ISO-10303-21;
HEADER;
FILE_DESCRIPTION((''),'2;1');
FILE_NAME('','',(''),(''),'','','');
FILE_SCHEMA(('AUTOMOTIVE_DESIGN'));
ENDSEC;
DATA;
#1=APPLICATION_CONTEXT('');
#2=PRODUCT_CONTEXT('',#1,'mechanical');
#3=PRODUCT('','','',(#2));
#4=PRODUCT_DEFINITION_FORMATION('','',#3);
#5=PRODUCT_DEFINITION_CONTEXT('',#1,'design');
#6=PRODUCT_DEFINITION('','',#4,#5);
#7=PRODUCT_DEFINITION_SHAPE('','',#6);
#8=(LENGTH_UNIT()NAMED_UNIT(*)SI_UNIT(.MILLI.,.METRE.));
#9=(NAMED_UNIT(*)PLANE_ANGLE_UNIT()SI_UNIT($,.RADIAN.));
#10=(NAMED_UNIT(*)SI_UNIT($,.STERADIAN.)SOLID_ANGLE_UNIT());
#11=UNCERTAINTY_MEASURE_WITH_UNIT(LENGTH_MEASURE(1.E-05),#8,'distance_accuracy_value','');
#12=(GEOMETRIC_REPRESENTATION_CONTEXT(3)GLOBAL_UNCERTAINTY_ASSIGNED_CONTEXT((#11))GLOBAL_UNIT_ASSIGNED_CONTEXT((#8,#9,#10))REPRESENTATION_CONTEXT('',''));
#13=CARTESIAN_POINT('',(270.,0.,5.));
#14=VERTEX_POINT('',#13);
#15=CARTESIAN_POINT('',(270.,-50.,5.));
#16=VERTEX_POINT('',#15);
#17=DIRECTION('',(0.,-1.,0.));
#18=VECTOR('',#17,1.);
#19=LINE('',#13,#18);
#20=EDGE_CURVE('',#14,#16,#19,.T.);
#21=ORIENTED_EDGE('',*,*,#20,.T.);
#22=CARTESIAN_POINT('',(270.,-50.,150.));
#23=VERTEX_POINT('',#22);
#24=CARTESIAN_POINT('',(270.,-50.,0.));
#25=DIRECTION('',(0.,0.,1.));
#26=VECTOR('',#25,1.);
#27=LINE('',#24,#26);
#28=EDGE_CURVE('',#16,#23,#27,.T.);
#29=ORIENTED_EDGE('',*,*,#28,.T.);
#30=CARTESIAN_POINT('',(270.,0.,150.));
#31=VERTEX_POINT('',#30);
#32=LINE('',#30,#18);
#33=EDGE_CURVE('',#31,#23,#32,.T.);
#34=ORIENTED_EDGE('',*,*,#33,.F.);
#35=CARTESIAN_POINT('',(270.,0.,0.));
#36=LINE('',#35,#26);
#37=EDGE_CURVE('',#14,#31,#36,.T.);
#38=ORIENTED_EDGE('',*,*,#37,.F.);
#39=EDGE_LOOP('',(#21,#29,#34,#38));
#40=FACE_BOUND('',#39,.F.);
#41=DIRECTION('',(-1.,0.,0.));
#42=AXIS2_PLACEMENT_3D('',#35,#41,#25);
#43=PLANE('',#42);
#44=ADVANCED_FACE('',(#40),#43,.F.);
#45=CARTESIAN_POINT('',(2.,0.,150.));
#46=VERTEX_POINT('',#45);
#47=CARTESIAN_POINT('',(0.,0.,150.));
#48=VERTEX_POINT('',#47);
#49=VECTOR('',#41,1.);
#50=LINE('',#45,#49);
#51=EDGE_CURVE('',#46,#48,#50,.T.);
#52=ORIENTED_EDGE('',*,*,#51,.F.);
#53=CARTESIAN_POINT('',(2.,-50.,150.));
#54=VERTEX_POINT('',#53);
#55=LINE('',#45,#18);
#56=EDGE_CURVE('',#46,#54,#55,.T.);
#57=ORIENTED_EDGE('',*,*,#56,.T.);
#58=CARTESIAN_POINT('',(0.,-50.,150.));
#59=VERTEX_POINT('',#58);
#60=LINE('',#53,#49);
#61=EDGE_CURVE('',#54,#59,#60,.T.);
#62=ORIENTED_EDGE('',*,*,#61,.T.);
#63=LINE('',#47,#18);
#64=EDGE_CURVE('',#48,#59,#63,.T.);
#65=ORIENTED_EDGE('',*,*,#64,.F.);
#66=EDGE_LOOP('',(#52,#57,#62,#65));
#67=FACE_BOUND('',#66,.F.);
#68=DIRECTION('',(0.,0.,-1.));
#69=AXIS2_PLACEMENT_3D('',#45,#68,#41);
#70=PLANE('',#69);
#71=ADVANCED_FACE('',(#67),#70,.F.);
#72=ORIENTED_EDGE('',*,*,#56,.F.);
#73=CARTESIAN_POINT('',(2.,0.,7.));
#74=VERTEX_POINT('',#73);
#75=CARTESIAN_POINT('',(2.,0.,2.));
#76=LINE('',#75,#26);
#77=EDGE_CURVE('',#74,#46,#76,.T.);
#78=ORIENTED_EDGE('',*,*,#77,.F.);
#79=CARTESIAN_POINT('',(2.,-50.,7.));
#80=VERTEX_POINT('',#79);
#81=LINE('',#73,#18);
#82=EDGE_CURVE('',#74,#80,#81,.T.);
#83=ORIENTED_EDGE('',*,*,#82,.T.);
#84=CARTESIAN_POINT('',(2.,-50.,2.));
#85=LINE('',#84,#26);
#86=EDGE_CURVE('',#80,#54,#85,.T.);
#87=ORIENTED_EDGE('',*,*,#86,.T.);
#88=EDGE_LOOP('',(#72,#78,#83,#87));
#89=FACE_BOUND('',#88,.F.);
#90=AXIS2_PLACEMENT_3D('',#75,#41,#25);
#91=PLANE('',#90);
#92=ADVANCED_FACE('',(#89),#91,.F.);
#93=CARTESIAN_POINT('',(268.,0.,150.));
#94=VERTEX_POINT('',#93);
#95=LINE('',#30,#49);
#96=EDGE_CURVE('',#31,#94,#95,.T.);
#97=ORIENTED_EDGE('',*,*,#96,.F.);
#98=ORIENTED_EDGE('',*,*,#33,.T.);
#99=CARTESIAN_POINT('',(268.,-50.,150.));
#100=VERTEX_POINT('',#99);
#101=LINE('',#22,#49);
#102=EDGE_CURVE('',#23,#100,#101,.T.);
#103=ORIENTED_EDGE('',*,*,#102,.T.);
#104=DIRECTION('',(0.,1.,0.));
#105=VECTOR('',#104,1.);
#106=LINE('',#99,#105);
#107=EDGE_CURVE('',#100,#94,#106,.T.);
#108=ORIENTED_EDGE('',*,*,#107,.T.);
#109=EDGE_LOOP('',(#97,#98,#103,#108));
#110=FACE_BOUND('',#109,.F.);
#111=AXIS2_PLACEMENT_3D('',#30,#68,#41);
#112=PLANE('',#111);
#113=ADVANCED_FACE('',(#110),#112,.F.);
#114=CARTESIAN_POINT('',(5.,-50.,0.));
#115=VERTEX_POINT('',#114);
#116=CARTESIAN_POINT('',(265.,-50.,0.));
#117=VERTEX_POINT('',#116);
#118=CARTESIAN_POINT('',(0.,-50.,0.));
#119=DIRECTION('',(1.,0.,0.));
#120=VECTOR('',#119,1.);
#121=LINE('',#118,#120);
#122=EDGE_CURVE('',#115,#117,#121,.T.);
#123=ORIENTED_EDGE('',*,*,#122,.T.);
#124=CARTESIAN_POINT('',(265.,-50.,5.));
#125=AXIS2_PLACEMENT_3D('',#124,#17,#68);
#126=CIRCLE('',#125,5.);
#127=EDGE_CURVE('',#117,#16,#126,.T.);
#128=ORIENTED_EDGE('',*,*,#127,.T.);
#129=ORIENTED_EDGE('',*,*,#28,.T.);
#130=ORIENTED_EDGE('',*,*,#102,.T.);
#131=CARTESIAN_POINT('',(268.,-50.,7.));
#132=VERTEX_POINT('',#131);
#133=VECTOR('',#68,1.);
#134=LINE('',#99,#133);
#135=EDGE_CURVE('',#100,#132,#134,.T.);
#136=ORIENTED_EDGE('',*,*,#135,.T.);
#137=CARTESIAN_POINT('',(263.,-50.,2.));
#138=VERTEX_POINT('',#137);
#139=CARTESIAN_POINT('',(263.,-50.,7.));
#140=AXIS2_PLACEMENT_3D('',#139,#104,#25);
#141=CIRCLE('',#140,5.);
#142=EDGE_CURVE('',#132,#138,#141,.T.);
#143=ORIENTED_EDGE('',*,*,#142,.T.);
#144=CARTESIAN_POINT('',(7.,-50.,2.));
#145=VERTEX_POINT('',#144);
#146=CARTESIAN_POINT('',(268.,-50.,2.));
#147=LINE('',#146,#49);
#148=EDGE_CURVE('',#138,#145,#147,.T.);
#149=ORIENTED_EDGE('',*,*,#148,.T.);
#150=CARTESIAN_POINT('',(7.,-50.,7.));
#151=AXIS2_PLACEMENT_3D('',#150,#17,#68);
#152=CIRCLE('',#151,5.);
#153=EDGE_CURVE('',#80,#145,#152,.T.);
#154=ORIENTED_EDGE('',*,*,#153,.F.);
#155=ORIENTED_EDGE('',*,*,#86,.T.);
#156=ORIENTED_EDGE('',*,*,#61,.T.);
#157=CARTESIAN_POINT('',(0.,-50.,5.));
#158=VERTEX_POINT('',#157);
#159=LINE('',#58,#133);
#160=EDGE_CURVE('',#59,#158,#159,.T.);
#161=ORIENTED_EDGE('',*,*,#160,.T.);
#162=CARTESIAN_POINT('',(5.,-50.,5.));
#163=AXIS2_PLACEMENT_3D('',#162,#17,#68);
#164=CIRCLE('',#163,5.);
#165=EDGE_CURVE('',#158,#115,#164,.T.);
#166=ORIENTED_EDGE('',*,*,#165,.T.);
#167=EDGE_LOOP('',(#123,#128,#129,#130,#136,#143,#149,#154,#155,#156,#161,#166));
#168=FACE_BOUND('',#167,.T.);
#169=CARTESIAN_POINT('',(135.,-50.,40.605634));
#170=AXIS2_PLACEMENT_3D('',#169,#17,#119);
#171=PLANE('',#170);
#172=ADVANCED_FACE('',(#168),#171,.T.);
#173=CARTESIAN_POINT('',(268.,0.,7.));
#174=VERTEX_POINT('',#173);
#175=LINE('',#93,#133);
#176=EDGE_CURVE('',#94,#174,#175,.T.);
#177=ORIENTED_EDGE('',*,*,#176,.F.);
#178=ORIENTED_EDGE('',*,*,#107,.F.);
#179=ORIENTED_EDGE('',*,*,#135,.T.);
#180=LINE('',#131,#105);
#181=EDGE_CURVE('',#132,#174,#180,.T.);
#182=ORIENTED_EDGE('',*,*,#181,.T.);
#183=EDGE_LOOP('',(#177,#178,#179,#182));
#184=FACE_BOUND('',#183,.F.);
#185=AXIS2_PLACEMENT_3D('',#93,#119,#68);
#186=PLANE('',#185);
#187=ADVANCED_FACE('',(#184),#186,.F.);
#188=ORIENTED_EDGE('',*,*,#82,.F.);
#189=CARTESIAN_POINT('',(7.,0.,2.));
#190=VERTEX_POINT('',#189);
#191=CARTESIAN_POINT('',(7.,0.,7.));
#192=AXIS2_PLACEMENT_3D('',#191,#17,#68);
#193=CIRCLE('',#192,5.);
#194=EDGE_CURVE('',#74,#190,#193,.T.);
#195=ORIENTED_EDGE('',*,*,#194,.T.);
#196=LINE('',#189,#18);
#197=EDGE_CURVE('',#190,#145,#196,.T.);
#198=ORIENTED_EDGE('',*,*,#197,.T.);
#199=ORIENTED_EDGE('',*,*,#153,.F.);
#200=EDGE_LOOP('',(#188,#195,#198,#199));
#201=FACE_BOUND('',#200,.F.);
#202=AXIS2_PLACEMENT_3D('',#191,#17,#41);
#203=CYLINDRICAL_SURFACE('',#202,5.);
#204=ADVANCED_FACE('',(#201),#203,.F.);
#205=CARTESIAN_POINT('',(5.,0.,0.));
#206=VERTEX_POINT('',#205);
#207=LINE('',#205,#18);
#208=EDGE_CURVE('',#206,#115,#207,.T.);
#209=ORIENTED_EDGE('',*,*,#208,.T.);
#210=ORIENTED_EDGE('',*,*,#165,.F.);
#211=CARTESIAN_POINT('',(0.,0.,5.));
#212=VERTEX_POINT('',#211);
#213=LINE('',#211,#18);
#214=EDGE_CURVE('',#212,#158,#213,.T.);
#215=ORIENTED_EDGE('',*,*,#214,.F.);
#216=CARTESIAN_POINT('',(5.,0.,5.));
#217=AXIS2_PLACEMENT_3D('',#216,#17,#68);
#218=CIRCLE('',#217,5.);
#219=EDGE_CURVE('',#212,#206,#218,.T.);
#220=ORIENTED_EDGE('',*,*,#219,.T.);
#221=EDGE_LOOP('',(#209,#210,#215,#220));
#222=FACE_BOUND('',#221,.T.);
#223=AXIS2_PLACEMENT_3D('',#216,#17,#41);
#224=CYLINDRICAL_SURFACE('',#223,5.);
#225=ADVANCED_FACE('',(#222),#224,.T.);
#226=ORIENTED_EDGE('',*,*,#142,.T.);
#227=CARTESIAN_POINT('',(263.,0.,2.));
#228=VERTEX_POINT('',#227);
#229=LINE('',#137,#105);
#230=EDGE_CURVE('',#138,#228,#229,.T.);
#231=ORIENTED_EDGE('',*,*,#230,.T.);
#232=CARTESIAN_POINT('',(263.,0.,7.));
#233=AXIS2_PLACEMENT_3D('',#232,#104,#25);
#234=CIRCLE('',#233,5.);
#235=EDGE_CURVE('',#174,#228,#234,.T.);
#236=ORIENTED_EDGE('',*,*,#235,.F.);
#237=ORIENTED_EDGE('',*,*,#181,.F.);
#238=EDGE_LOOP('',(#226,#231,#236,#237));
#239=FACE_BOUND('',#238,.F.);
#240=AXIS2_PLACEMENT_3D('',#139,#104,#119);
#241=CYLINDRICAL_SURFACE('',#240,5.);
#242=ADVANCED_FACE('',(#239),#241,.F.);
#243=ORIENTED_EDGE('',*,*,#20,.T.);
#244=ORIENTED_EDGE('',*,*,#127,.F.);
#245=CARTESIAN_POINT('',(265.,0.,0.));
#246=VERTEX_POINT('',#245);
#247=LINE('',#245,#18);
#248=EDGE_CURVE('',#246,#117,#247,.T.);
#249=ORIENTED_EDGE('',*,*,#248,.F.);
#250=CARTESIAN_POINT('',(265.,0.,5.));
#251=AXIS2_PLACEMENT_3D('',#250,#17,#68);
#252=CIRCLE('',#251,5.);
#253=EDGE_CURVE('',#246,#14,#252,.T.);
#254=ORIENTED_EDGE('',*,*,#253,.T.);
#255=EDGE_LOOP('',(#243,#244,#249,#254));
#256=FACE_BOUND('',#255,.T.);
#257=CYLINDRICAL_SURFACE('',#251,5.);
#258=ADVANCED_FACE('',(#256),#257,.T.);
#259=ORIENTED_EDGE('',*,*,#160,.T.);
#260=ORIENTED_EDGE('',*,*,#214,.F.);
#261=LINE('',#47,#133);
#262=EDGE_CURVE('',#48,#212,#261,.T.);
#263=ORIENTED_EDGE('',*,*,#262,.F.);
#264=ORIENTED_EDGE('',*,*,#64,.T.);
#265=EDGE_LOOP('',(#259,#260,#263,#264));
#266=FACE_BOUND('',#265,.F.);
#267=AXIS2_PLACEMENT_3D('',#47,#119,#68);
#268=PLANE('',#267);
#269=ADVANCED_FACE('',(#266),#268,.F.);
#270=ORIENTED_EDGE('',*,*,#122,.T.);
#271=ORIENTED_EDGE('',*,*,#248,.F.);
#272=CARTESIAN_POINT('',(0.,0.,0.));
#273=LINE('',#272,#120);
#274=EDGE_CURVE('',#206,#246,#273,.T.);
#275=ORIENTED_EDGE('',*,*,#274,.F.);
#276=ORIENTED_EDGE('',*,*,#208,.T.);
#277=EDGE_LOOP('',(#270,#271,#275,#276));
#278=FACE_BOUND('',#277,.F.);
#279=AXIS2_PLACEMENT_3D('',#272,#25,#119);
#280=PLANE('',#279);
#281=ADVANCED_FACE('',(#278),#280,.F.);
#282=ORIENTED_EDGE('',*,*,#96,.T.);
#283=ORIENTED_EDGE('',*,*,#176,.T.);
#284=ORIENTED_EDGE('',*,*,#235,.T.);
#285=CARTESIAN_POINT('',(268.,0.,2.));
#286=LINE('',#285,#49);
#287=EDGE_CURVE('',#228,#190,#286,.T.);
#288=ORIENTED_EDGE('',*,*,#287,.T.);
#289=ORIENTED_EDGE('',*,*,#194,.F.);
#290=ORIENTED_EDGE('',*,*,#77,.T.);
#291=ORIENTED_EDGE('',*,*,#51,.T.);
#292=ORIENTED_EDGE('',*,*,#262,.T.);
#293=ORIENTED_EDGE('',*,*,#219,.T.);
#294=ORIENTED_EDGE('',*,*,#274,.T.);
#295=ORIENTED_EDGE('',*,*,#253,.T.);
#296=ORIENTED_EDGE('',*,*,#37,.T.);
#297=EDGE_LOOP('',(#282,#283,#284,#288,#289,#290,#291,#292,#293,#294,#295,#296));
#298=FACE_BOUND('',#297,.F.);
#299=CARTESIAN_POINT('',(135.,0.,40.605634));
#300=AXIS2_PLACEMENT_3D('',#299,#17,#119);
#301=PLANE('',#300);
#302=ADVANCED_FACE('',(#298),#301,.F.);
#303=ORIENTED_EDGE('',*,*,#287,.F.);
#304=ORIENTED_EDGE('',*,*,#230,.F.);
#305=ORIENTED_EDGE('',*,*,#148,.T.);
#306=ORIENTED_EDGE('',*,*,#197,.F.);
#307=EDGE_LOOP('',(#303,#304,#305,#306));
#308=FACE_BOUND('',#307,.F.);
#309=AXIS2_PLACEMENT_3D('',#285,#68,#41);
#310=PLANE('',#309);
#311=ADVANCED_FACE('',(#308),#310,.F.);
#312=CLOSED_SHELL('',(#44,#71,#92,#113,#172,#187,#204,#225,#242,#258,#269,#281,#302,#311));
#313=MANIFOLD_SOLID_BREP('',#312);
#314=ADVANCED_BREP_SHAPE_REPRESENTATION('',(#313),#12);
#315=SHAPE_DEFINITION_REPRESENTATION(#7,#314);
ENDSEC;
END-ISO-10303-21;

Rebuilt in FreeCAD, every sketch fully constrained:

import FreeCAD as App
import Part
import Sketcher
Q = App.Units.Quantity


def edges_at(feature, points):
    """Names of the edges that pass closest to the given points."""
    edges = feature.Shape.Edges
    near = lambda p: min(range(len(edges)), key=lambda i: edges[i].distToShape(Part.Vertex(*p))[0])
    return sorted({f"Edge{near(p) + 1}" for p in points})

doc = App.newDocument("Part")
body = doc.addObject("PartDesign::Body", "Body")

# Sketch on XZ plane
sketch1 = doc.addObject("Sketcher::SketchObject", "Sketch")
body.addObject(sketch1)
sketch1.AttachmentSupport = (doc.XZ_Plane, [""])
sketch1.MapMode = "FlatFace"
sketch1.addGeometry(Part.LineSegment(App.Vector(268, 2, 0), App.Vector(2, 2, 0)), False)
sketch1.addGeometry(Part.LineSegment(App.Vector(2, 2, 0), App.Vector(2, 150, 0)), False)
sketch1.addGeometry(Part.LineSegment(App.Vector(2, 150, 0), App.Vector(0, 150, 0)), False)
sketch1.addGeometry(Part.LineSegment(App.Vector(0, 150, 0), App.Vector(0, 0, 0)), False)
sketch1.addGeometry(Part.LineSegment(App.Vector(0, 0, 0), App.Vector(270, 0, 0)), False)
sketch1.addGeometry(Part.LineSegment(App.Vector(270, 0, 0), App.Vector(270, 150, 0)), False)
sketch1.addGeometry(Part.LineSegment(App.Vector(270, 150, 0), App.Vector(268, 150, 0)), False)
sketch1.addGeometry(Part.LineSegment(App.Vector(268, 150, 0), App.Vector(268, 2, 0)), False)
sketch1.addConstraint(Sketcher.Constraint("Coincident", 0, 2, 1, 1))
sketch1.addConstraint(Sketcher.Constraint("Coincident", 1, 2, 2, 1))
sketch1.addConstraint(Sketcher.Constraint("Coincident", 2, 2, 3, 1))
sketch1.addConstraint(Sketcher.Constraint("Coincident", 3, 2, 4, 1))
sketch1.addConstraint(Sketcher.Constraint("Coincident", 4, 2, 5, 1))
sketch1.addConstraint(Sketcher.Constraint("Coincident", 5, 2, 6, 1))
sketch1.addConstraint(Sketcher.Constraint("Coincident", 6, 2, 7, 1))
sketch1.addConstraint(Sketcher.Constraint("Coincident", 7, 2, 0, 1))
sketch1.addConstraint(Sketcher.Constraint("Horizontal", 0))
sketch1.addConstraint(Sketcher.Constraint("Vertical", 1))
sketch1.addConstraint(Sketcher.Constraint("Horizontal", 2))
sketch1.addConstraint(Sketcher.Constraint("Vertical", 3))
sketch1.addConstraint(Sketcher.Constraint("Horizontal", 4))
sketch1.addConstraint(Sketcher.Constraint("Vertical", 5))
sketch1.addConstraint(Sketcher.Constraint("Horizontal", 6))
sketch1.addConstraint(Sketcher.Constraint("Vertical", 7))
sketch1.addConstraint(Sketcher.Constraint("Coincident", 3, 2, -1, 1))
sketch1.addConstraint(Sketcher.Constraint("Horizontal", 2, 2, 5, 2))
sketch1.addConstraint(Sketcher.Constraint("Equal", 2, 6))
sketch1.addConstraint(Sketcher.Constraint("DistanceX", 0, 2, 0, 1, Q("266 mm")))
sketch1.addConstraint(Sketcher.Constraint("DistanceX", 2, 2, 2, 1, Q("2 mm")))
sketch1.addConstraint(Sketcher.Constraint("DistanceY", 1, 1, 1, 2, Q("148 mm")))
sketch1.addConstraint(Sketcher.Constraint("DistanceY", 3, 2, 3, 1, Q("150 mm")))
pad1 = doc.addObject("PartDesign::Pad", "Pad")
body.addObject(pad1)
pad1.Profile = sketch1
pad1.Length = 50

# Sketch on XZ plane
sketch2 = doc.addObject("Sketcher::SketchObject", "Sketch001")
body.addObject(sketch2)
sketch2.AttachmentSupport = (doc.XZ_Plane, [""])
sketch2.MapMode = "FlatFace"
sketch2.addGeometry(Part.LineSegment(App.Vector(268, 2, 0), App.Vector(2, 2, 0)), False)
sketch2.addGeometry(Part.LineSegment(App.Vector(2, 2, 0), App.Vector(2, 150, 0)), False)
sketch2.addGeometry(Part.LineSegment(App.Vector(2, 150, 0), App.Vector(0, 150, 0)), False)
sketch2.addGeometry(Part.LineSegment(App.Vector(0, 150, 0), App.Vector(0, 0, 0)), False)
sketch2.addGeometry(Part.LineSegment(App.Vector(0, 0, 0), App.Vector(270, 0, 0)), False)
sketch2.addGeometry(Part.LineSegment(App.Vector(270, 0, 0), App.Vector(270, 150, 0)), False)
sketch2.addGeometry(Part.LineSegment(App.Vector(270, 150, 0), App.Vector(268, 150, 0)), False)
sketch2.addGeometry(Part.LineSegment(App.Vector(268, 150, 0), App.Vector(268, 2, 0)), False)
sketch2.addConstraint(Sketcher.Constraint("Coincident", 0, 2, 1, 1))
sketch2.addConstraint(Sketcher.Constraint("Coincident", 1, 2, 2, 1))
sketch2.addConstraint(Sketcher.Constraint("Coincident", 2, 2, 3, 1))
sketch2.addConstraint(Sketcher.Constraint("Coincident", 3, 2, 4, 1))
sketch2.addConstraint(Sketcher.Constraint("Coincident", 4, 2, 5, 1))
sketch2.addConstraint(Sketcher.Constraint("Coincident", 5, 2, 6, 1))
sketch2.addConstraint(Sketcher.Constraint("Coincident", 6, 2, 7, 1))
sketch2.addConstraint(Sketcher.Constraint("Coincident", 7, 2, 0, 1))
sketch2.addConstraint(Sketcher.Constraint("Horizontal", 0))
sketch2.addConstraint(Sketcher.Constraint("Vertical", 1))
sketch2.addConstraint(Sketcher.Constraint("Horizontal", 2))
sketch2.addConstraint(Sketcher.Constraint("Vertical", 3))
sketch2.addConstraint(Sketcher.Constraint("Horizontal", 4))
sketch2.addConstraint(Sketcher.Constraint("Vertical", 5))
sketch2.addConstraint(Sketcher.Constraint("Horizontal", 6))
sketch2.addConstraint(Sketcher.Constraint("Vertical", 7))
sketch2.addConstraint(Sketcher.Constraint("Coincident", 3, 2, -1, 1))
sketch2.addConstraint(Sketcher.Constraint("Horizontal", 2, 2, 5, 2))
sketch2.addConstraint(Sketcher.Constraint("Equal", 2, 6))
sketch2.addConstraint(Sketcher.Constraint("DistanceX", 0, 2, 0, 1, Q("266 mm")))
sketch2.addConstraint(Sketcher.Constraint("DistanceX", 2, 2, 2, 1, Q("2 mm")))
sketch2.addConstraint(Sketcher.Constraint("DistanceY", 1, 1, 1, 2, Q("148 mm")))
sketch2.addConstraint(Sketcher.Constraint("DistanceY", 3, 2, 3, 1, Q("150 mm")))
pad2 = doc.addObject("PartDesign::Pad", "Pad001")
body.addObject(pad2)
pad2.Profile = sketch2
pad2.Length = 25
doc.recompute()

fillet = doc.addObject("PartDesign::Fillet", "Fillet")
body.addObject(fillet)
fillet.Base = (pad2, edges_at(pad2, [(0, -25, 0)]))
fillet.Radius = 5
doc.recompute()

fillet2 = doc.addObject("PartDesign::Fillet", "Fillet001")
body.addObject(fillet2)
fillet2.Base = (fillet, edges_at(fillet, [(2, -25, 2)]))
fillet2.Radius = 5
doc.recompute()

fillet3 = doc.addObject("PartDesign::Fillet", "Fillet002")
body.addObject(fillet3)
fillet3.Base = (fillet2, edges_at(fillet2, [(270, -25, 0)]))
fillet3.Radius = 5
doc.recompute()

fillet4 = doc.addObject("PartDesign::Fillet", "Fillet003")
body.addObject(fillet4)
fillet4.Base = (fillet3, edges_at(fillet3, [(268, -25, 2)]))
fillet4.Radius = 5

doc.recompute()
